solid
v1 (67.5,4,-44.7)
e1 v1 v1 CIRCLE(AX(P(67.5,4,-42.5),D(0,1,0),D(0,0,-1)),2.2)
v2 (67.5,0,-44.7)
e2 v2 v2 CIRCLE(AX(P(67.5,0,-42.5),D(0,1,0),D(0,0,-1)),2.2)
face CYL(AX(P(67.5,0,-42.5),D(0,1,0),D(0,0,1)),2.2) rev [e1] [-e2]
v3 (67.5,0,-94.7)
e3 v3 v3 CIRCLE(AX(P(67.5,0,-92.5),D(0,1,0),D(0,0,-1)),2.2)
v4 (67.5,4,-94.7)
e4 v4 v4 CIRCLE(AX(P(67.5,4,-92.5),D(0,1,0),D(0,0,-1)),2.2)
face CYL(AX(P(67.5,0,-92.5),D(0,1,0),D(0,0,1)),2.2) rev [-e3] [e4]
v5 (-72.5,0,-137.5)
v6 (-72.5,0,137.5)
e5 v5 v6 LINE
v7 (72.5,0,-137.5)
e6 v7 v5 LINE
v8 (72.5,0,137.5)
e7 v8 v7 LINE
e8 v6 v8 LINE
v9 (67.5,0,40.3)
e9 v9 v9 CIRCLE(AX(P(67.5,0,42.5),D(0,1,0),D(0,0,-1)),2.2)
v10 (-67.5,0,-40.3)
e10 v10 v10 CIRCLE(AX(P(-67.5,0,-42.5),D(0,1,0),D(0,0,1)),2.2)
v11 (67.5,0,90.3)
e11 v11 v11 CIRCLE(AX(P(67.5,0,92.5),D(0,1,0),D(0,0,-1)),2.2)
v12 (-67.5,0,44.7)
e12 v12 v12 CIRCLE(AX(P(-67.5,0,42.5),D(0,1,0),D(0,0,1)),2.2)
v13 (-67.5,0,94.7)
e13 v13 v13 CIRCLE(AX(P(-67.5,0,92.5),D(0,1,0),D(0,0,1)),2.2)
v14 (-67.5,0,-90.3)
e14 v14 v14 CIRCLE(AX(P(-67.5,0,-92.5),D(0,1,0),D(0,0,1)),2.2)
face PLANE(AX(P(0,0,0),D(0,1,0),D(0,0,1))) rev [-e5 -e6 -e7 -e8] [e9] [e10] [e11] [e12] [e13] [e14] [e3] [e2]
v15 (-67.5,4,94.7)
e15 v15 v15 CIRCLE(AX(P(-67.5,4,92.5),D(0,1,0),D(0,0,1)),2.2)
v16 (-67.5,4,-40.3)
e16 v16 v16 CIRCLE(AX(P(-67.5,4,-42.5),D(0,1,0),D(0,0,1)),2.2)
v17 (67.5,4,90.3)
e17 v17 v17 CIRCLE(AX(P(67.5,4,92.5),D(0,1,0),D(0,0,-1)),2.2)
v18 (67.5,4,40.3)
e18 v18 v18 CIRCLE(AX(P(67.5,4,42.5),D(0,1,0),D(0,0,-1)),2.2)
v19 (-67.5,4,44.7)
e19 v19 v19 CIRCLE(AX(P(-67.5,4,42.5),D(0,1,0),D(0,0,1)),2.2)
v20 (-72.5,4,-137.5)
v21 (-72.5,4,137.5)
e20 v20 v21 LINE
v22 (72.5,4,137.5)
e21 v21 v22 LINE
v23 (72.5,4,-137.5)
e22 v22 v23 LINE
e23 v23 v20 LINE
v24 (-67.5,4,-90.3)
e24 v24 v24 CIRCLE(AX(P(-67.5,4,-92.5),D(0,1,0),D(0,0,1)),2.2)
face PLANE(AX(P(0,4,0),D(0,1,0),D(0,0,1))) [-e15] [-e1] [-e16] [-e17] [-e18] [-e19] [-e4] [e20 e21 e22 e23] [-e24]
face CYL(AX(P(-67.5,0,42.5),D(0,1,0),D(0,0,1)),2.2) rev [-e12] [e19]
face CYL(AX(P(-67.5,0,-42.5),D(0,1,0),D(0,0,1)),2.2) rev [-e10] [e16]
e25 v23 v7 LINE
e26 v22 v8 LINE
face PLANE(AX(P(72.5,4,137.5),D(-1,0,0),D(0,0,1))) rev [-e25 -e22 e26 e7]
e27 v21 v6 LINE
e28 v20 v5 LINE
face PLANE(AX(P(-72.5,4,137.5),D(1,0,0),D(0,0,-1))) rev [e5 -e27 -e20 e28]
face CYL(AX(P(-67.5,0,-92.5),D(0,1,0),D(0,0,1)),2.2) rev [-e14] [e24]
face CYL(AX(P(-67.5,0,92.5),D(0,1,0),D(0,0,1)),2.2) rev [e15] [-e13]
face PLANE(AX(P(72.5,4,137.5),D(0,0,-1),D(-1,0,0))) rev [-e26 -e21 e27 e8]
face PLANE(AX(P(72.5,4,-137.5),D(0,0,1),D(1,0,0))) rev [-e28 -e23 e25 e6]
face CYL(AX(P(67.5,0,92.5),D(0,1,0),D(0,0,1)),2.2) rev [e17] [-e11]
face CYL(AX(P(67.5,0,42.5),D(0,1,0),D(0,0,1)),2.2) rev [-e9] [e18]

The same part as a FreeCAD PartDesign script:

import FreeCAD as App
import Part
import Sketcher
Q = App.Units.Quantity


def add_polygon(sketch, points):
    """Adds a closed chain of lines whose ends are joined by coincident constraints."""
    first, n = sketch.GeometryCount, len(points)
    for a, b in zip(points, points[1:] + points[:1]):
        sketch.addGeometry(Part.LineSegment(App.Vector(*a, 0), App.Vector(*b, 0)), False)
    for i in range(n):
        sketch.addConstraint(Sketcher.Constraint("Coincident", first + i, 2, first + (i + 1) % n, 1))

doc = App.newDocument("Part")
body = doc.addObject("PartDesign::Body", "Body")

# Sketch on XZ plane
sketch1 = doc.addObject("Sketcher::SketchObject", "Sketch")
body.addObject(sketch1)
sketch1.AttachmentSupport = (doc.XZ_Plane, [""])
sketch1.MapMode = "FlatFace"
add_polygon(sketch1, [(-72, -138), (-72, 138), (72, 138), (72, -138)])  # lines 0-3
sketch1.addConstraint(Sketcher.Constraint("Vertical", 0))
sketch1.addConstraint(Sketcher.Constraint("Horizontal", 1))
sketch1.addConstraint(Sketcher.Constraint("Vertical", 2))
sketch1.addConstraint(Sketcher.Constraint("Horizontal", 3))
sketch1.addConstraint(Sketcher.Constraint("Symmetric", 0, 2, 2, 2, -1, 1))
sketch1.addConstraint(Sketcher.Constraint("DistanceX", 1, 1, 1, 2, Q("145 mm")))
sketch1.addConstraint(Sketcher.Constraint("DistanceY", 0, 1, 0, 2, Q("275 mm")))
pad1 = doc.addObject("PartDesign::Pad", "Pad")
body.addObject(pad1)
pad1.Profile = sketch1
pad1.Length = 4
pad1.Reversed = True

# Sketch on XZ plane
sketch2 = doc.addObject("Sketcher::SketchObject", "Sketch001")
body.addObject(sketch2)
sketch2.AttachmentSupport = (doc.XZ_Plane, [""])
sketch2.MapMode = "FlatFace"
sketch2.AttachmentOffset = App.Placement(App.Vector(0, 0, -4), App.Rotation())
sketch2.addGeometry(Part.Circle(App.Vector(-67.5, -92.5, 0), App.Vector(0, 0, 1), 2.2), False)
sketch2.addGeometry(Part.Circle(App.Vector(-67.5, -42.5, 0), App.Vector(0, 0, 1), 2.2), False)
sketch2.addGeometry(Part.Circle(App.Vector(-67.5, 42.5, 0), App.Vector(0, 0, 1), 2.2), False)
sketch2.addGeometry(Part.Circle(App.Vector(-67.5, 92.5, 0), App.Vector(0, 0, 1), 2.2), False)
sketch2.addGeometry(Part.Circle(App.Vector(67.5, 92.5, 0), App.Vector(0, 0, 1), 2.2), False)
sketch2.addGeometry(Part.Circle(App.Vector(67.5, 42.5, 0), App.Vector(0, 0, 1), 2.2), False)
sketch2.addGeometry(Part.Circle(App.Vector(67.5, -42.5, 0), App.Vector(0, 0, 1), 2.2), False)
sketch2.addGeometry(Part.Circle(App.Vector(67.5, -92.5, 0), App.Vector(0, 0, 1), 2.2), False)
sketch2.addConstraint(Sketcher.Constraint("Equal", 0, 1))
sketch2.addConstraint(Sketcher.Constraint("Equal", 1, 2))
sketch2.addConstraint(Sketcher.Constraint("Equal", 2, 3))
sketch2.addConstraint(Sketcher.Constraint("Equal", 3, 4))
sketch2.addConstraint(Sketcher.Constraint("Equal", 4, 5))
sketch2.addConstraint(Sketcher.Constraint("Equal", 5, 6))
sketch2.addConstraint(Sketcher.Constraint("Equal", 6, 7))
sketch2.addConstraint(Sketcher.Constraint("Symmetric", 0, 3, 4, 3, -1, 1))
sketch2.addConstraint(Sketcher.Constraint("Symmetric", 1, 3, 5, 3, -1, 1))
sketch2.addConstraint(Sketcher.Constraint("Symmetric", 2, 3, 6, 3, -1, 1))
sketch2.addConstraint(Sketcher.Constraint("Symmetric", 3, 3, 7, 3, -1, 1))
sketch2.addConstraint(Sketcher.Constraint("Symmetric", 3, 3, 4, 3, -2))
sketch2.addConstraint(Sketcher.Constraint("Symmetric", 2, 3, 5, 3, -2))
sketch2.addConstraint(Sketcher.Constraint("Vertical", 0, 3, 1, 3))
sketch2.addConstraint(Sketcher.Constraint("Diameter", 0, Q("4.4 mm")))
sketch2.addConstraint(Sketcher.Constraint("DistanceY", 0, 3, 1, 3, Q("50 mm")))
sketch2.addConstraint(Sketcher.Constraint("DistanceY", 1, 3, 2, 3, Q("85 mm")))
sketch2.addConstraint(Sketcher.Constraint("DistanceX", 3, 3, 4, 3, Q("135 mm")))
pocket1 = doc.addObject("PartDesign::Pocket", "Pocket")
body.addObject(pocket1)
pocket1.Profile = sketch2
pocket1.Type = "ThroughAll"
pocket1.Reversed = True

doc.recompute()
